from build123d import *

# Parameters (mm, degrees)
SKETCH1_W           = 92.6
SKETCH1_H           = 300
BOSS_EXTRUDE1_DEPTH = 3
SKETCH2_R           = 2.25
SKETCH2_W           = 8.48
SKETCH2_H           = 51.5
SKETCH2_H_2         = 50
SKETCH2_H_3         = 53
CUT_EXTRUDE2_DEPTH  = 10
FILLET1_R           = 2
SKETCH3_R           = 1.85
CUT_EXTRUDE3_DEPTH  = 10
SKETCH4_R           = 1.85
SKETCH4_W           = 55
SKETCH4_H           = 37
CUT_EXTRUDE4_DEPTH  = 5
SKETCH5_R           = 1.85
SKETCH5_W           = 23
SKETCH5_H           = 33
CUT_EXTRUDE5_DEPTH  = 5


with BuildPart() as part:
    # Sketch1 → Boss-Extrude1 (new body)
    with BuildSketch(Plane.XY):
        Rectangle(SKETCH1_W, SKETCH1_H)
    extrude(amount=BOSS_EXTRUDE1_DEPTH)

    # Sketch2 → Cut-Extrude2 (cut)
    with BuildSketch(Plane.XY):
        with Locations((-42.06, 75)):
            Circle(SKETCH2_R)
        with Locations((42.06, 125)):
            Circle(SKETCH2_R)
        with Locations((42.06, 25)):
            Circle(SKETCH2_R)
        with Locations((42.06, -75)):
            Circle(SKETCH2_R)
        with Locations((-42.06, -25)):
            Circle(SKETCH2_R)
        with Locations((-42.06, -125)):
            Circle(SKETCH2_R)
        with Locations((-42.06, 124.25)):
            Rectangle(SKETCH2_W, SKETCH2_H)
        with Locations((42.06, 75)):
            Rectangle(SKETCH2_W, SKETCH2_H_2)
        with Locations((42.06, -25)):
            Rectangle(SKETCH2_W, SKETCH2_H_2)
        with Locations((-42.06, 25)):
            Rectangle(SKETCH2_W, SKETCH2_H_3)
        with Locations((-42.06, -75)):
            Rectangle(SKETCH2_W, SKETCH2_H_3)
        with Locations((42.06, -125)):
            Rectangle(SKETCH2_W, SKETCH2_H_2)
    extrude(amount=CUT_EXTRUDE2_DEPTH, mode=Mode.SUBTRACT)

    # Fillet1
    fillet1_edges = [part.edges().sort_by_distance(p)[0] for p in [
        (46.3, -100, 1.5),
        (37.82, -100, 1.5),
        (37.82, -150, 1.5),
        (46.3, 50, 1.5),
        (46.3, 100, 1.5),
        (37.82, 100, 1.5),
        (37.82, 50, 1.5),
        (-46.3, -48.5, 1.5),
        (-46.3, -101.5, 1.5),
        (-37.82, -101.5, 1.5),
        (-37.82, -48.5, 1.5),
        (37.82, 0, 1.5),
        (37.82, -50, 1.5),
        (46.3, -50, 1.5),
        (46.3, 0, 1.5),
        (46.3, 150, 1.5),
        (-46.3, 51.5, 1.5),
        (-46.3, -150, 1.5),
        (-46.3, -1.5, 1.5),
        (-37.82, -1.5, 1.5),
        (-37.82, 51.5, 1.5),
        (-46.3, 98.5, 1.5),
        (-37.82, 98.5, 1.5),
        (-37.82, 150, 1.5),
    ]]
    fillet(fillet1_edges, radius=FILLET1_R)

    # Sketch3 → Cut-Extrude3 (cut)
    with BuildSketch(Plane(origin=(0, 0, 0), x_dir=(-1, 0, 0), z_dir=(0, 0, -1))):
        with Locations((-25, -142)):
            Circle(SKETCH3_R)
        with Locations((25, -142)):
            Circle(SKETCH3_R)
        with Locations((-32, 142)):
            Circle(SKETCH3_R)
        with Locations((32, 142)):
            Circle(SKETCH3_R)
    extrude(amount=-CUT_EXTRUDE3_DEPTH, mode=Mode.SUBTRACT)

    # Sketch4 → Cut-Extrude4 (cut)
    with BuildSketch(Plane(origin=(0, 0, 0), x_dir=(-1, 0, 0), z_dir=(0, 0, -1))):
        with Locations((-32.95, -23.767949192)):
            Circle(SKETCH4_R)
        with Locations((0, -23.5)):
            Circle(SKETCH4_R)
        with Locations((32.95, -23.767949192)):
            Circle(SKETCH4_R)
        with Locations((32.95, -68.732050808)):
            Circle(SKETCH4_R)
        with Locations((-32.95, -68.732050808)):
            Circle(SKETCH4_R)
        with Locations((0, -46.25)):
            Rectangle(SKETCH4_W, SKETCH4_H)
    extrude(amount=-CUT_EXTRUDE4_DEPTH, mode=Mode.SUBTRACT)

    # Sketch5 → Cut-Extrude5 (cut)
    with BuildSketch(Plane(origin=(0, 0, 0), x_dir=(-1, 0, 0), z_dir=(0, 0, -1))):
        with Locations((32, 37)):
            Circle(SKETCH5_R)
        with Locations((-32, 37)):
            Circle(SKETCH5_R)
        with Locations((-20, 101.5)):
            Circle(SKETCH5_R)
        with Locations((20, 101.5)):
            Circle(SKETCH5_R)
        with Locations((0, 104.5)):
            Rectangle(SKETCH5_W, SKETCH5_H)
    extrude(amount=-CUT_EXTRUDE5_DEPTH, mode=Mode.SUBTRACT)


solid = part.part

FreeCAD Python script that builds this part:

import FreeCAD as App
import Part
import Sketcher

V = App.Vector


def edges_at(feature, points):
    """Names of the edges that pass closest to the given points."""
    edges = feature.Shape.Edges
    near = lambda p: min(range(len(edges)), key=lambda i: edges[i].distToShape(Part.Vertex(*p))[0])
    return sorted({f"Edge{near(p) + 1}" for p in points})


def add_polygon(sketch, points):
    """Adds a closed chain of lines whose ends are joined by coincident constraints."""
    first, n = sketch.GeometryCount, len(points)
    for a, b in zip(points, points[1:] + points[:1]):
        sketch.addGeometry(Part.LineSegment(App.Vector(*a, 0), App.Vector(*b, 0)), False)
    for i in range(n):
        sketch.addConstraint(Sketcher.Constraint("Coincident", first + i, 2, first + (i + 1) % n, 1))

doc = App.newDocument("Part")
body = doc.addObject("PartDesign::Body", "Body")

# Sketch on XY plane
sketch1 = doc.addObject("Sketcher::SketchObject", "Sketch")
body.addObject(sketch1)
sketch1.AttachmentSupport = (doc.XY_Plane, [""])
sketch1.MapMode = "FlatFace"
add_polygon(sketch1, [(-46, 150), (-46, -150), (46, -150), (46, 150)])  # lines 0-3
sketch1.addConstraint(Sketcher.Constraint("Vertical", 0))
sketch1.addConstraint(Sketcher.Constraint("Horizontal", 1))
sketch1.addConstraint(Sketcher.Constraint("Vertical", 2))
sketch1.addConstraint(Sketcher.Constraint("Horizontal", 3))
sketch1.addConstraint(Sketcher.Constraint("Symmetric", 0, 2, 2, 2, -1, 1))
sketch1.addConstraint(Sketcher.Constraint("DistanceY", 0, 2, 0, 1, 300.0))
sketch1.addConstraint(Sketcher.Constraint("DistanceX", 1, 1, 1, 2, 92.6))
pad1 = doc.addObject("PartDesign::Pad", "Pad")
body.addObject(pad1)
pad1.Profile = sketch1
pad1.Length = 3

# Sketch on XY plane
sketch2 = doc.addObject("Sketcher::SketchObject", "Sketch001")
body.addObject(sketch2)
sketch2.AttachmentSupport = (doc.XY_Plane, [""])
sketch2.MapMode = "FlatFace"
sketch2.addGeometry(Part.Circle(V(-42.1, 75, 0), V(0, 0, 1), 2.2), False)  # 0
sketch2.addGeometry(Part.Circle(V(42.1, 125, 0), V(0, 0, 1), 2.2), False)  # 1
sketch2.addGeometry(Part.Circle(V(42.1, 25, 0), V(0, 0, 1), 2.2), False)  # 2
sketch2.addGeometry(Part.Circle(V(42.1, -75, 0), V(0, 0, 1), 2.2), False)  # 3
sketch2.addGeometry(Part.Circle(V(-42.1, -25, 0), V(0, 0, 1), 2.2), False)  # 4
sketch2.addGeometry(Part.Circle(V(-42.1, -125, 0), V(0, 0, 1), 2.2), False)  # 5
add_polygon(sketch2, [(-46.3, 150), (-46.3, 98.5), (-37.8, 98.5), (-37.8, 150)])  # lines 6-9
add_polygon(sketch2, [(37.8, 100), (37.8, 50), (46.3, 50), (46.3, 100)])  # lines 10-13
add_polygon(sketch2, [(37.8, 0), (37.8, -50), (46.3, -50), (46.3, 0)])  # lines 14-17
add_polygon(sketch2, [(-46.3, 51.5), (-46.3, -1.5), (-37.8, -1.5), (-37.8, 51.5)])  # lines 18-21
add_polygon(sketch2, [(-46.3, -48.5), (-46.3, -101.5), (-37.8, -101.5), (-37.8, -48.5)])  # lines 22-25
add_polygon(sketch2, [(37.8, -100), (37.8, -150), (46.3, -150), (46.3, -100)])  # lines 26-29
sketch2.addConstraint(Sketcher.Constraint("Vertical", 6))
sketch2.addConstraint(Sketcher.Constraint("Horizontal", 7))
sketch2.addConstraint(Sketcher.Constraint("Vertical", 8))
sketch2.addConstraint(Sketcher.Constraint("Horizontal", 9))
sketch2.addConstraint(Sketcher.Constraint("Vertical", 10))
sketch2.addConstraint(Sketcher.Constraint("Horizontal", 11))
sketch2.addConstraint(Sketcher.Constraint("Vertical", 12))
sketch2.addConstraint(Sketcher.Constraint("Horizontal", 13))
sketch2.addConstraint(Sketcher.Constraint("Vertical", 14))
sketch2.addConstraint(Sketcher.Constraint("Horizontal", 15))
sketch2.addConstraint(Sketcher.Constraint("Vertical", 16))
sketch2.addConstraint(Sketcher.Constraint("Horizontal", 17))
sketch2.addConstraint(Sketcher.Constraint("Vertical", 18))
sketch2.addConstraint(Sketcher.Constraint("Horizontal", 19))
sketch2.addConstraint(Sketcher.Constraint("Vertical", 20))
sketch2.addConstraint(Sketcher.Constraint("Horizontal", 21))
sketch2.addConstraint(Sketcher.Constraint("Vertical", 22))
sketch2.addConstraint(Sketcher.Constraint("Horizontal", 23))
sketch2.addConstraint(Sketcher.Constraint("Vertical", 24))
sketch2.addConstraint(Sketcher.Constraint("Horizontal", 25))
sketch2.addConstraint(Sketcher.Constraint("Vertical", 26))
sketch2.addConstraint(Sketcher.Constraint("Horizontal", 27))
sketch2.addConstraint(Sketcher.Constraint("Vertical", 28))
sketch2.addConstraint(Sketcher.Constraint("Horizontal", 29))
sketch2.addConstraint(Sketcher.Constraint("Equal", 0, 1))
sketch2.addConstraint(Sketcher.Constraint("Equal", 1, 2))
sketch2.addConstraint(Sketcher.Constraint("Equal", 2, 3))
sketch2.addConstraint(Sketcher.Constraint("Equal", 3, 4))
sketch2.addConstraint(Sketcher.Constraint("Equal", 4, 5))
sketch2.addConstraint(Sketcher.Constraint("Symmetric", 0, 3, 3, 3, -1, 1))
sketch2.addConstraint(Sketcher.Constraint("Symmetric", 2, 3, 4, 3, -1, 1))
sketch2.addConstraint(Sketcher.Constraint("Symmetric", 1, 3, 5, 3, -1, 1))
sketch2.addConstraint(Sketcher.Constraint("Symmetric", 8, 2, 26, 2, -1, 1))
sketch2.addConstraint(Sketcher.Constraint("Symmetric", 10, 2, 14, 2, -1))
sketch2.addConstraint(Sketcher.Constraint("Symmetric", 12, 2, 28, 2, -1))
sketch2.addConstraint(Sketcher.Constraint("PointOnObject", 16, 2, -1))
sketch2.addConstraint(Sketcher.Constraint("Vertical", 1, 3, 2, 3))
sketch2.addConstraint(Sketcher.Constraint("Vertical", 2, 3, 3, 3))
sketch2.addConstraint(Sketcher.Constraint("Vertical", 12, 2, 15, 2))
sketch2.addConstraint(Sketcher.Constraint("Vertical", 9, 2, 18, 2))
sketch2.addConstraint(Sketcher.Constraint("Vertical", 8, 2, 19, 2))
sketch2.addConstraint(Sketcher.Constraint("Vertical", 21, 2, 22, 2))
sketch2.addConstraint(Sketcher.Constraint("Vertical", 20, 2, 23, 2))
sketch2.addConstraint(Sketcher.Constraint("Vertical", 17, 2, 26, 2))
sketch2.addConstraint(Sketcher.Constraint("Equal", 9, 11))
sketch2.addConstraint(Sketcher.Constraint("Equal", 12, 14))
sketch2.addConstraint(Sketcher.Constraint("Equal", 20, 22))
sketch2.addConstraint(Sketcher.Constraint("Equal", 16, 26))
sketch2.addConstraint(Sketcher.Constraint("Diameter", 0, 4.5))
sketch2.addConstraint(Sketcher.Constraint("DistanceY", 10, 2, 10, 1, 50.0))
sketch2.addConstraint(Sketcher.Constraint("DistanceY", 18, 2, 18, 1, 53.0))
sketch2.addConstraint(Sketcher.Constraint("DistanceY", 6, 2, 6, 1, 51.5))
sketch2.addConstraint(Sketcher.Constraint("DistanceY", -1, 1, 0, 3, 75.0))
sketch2.addConstraint(Sketcher.Constraint("DistanceY", -1, 1, 1, 3, 125.0))
sketch2.addConstraint(Sketcher.Constraint("DistanceY", -1, 1, 2, 3, 25.0))
sketch2.addConstraint(Sketcher.Constraint("DistanceY", 20, 2, 7, 2, 47.0))
sketch2.addConstraint(Sketcher.Constraint("DistanceY", 22, 2, 18, 2, 100.0))
sketch2.addConstraint(Sketcher.Constraint("DistanceX", 7, 1, 7, 2, 8.48))
sketch2.addConstraint(Sketcher.Constraint("DistanceX", 6, 2, -1, 1, 46.3))
sketch2.addConstraint(Sketcher.Constraint("DistanceX", 0, 3, -1, 1, 42.06))
pocket1 = doc.addObject("PartDesign::Pocket", "Pocket")
body.addObject(pocket1)
pocket1.Profile = sketch2
pocket1.Length = 10
pocket1.Reversed = True
doc.recompute()

fillet = doc.addObject("PartDesign::Fillet", "Fillet")
body.addObject(fillet)
fillet.Base = (pocket1, edges_at(pocket1, [
    (46.3, -100, 1.5),
    (37.82, -100, 1.5),
    (37.82, -150, 1.5),
    (46.3, 50, 1.5),
    (46.3, 100, 1.5),
    (37.82, 100, 1.5),
    (37.82, 50, 1.5),
    (-46.3, -48.5, 1.5),
    (-46.3, -101.5, 1.5),
    (-37.82, -101.5, 1.5),
    (-37.82, -48.5, 1.5),
    (37.82, 0, 1.5),
    (37.82, -50, 1.5),
    (46.3, -50, 1.5),
    (46.3, 0, 1.5),
    (46.3, 150, 1.5),
    (-46.3, 51.5, 1.5),
    (-46.3, -150, 1.5),
    (-46.3, -1.5, 1.5),
    (-37.82, -1.5, 1.5),
    (-37.82, 51.5, 1.5),
    (-46.3, 98.5, 1.5),
    (-37.82, 98.5, 1.5),
    (-37.82, 150, 1.5),
]))
fillet.Radius = 2

# Sketch on XY plane
sketch3 = doc.addObject("Sketcher::SketchObject", "Sketch002")
body.addObject(sketch3)
sketch3.AttachmentSupport = (doc.XY_Plane, [""])
sketch3.MapMode = "FlatFace"
sketch3.addGeometry(Part.Circle(V(25, -142, 0), V(0, 0, 1), 1.9), False)
sketch3.addGeometry(Part.Circle(V(-25, -142, 0), V(0, 0, 1), 1.9), False)
sketch3.addGeometry(Part.Circle(V(32, 142, 0), V(0, 0, 1), 1.9), False)
sketch3.addGeometry(Part.Circle(V(-32, 142, 0), V(0, 0, 1), 1.9), False)
sketch3.addConstraint(Sketcher.Constraint("Equal", 0, 1))
sketch3.addConstraint(Sketcher.Constraint("Equal", 1, 2))
sketch3.addConstraint(Sketcher.Constraint("Equal", 2, 3))
sketch3.addConstraint(Sketcher.Constraint("Symmetric", 0, 3, 1, 3, -2))
sketch3.addConstraint(Sketcher.Constraint("Symmetric", 2, 3, 3, 3, -2))
sketch3.addConstraint(Sketcher.Constraint("Diameter", 0, 3.7))
sketch3.addConstraint(Sketcher.Constraint("DistanceX", -1, 1, 0, 3, 25.0))
sketch3.addConstraint(Sketcher.Constraint("DistanceY", 0, 3, -1, 1, 142.0))
sketch3.addConstraint(Sketcher.Constraint("DistanceX", -1, 1, 2, 3, 32.0))
sketch3.addConstraint(Sketcher.Constraint("DistanceY", -1, 1, 2, 3, 142.0))
pocket2 = doc.addObject("PartDesign::Pocket", "Pocket001")
body.addObject(pocket2)
pocket2.Profile = sketch3
pocket2.Length = 10
pocket2.Reversed = True

# Sketch on XY plane
sketch4 = doc.addObject("Sketcher::SketchObject", "Sketch003")
body.addObject(sketch4)
sketch4.AttachmentSupport = (doc.XY_Plane, [""])
sketch4.MapMode = "FlatFace"
sketch4.addGeometry(Part.Circle(V(33, -23.8, 0), V(0, 0, 1), 1.9), False)  # 0
sketch4.addGeometry(Part.Circle(V(0, -23.5, 0), V(0, 0, 1), 1.9), False)  # 1
sketch4.addGeometry(Part.Circle(V(-33, -23.8, 0), V(0, 0, 1), 1.9), False)  # 2
sketch4.addGeometry(Part.Circle(V(-33, -68.7, 0), V(0, 0, 1), 1.9), False)  # 3
sketch4.addGeometry(Part.Circle(V(33, -68.7, 0), V(0, 0, 1), 1.9), False)  # 4
add_polygon(sketch4, [(27.5, -27.8), (27.5, -64.8), (-27.5, -64.8), (-27.5, -27.8)])  # lines 5-8
sketch4.addConstraint(Sketcher.Constraint("Vertical", 5))
sketch4.addConstraint(Sketcher.Constraint("Horizontal", 6))
sketch4.addConstraint(Sketcher.Constraint("Vertical", 7))
sketch4.addConstraint(Sketcher.Constraint("Horizontal", 8))
sketch4.addConstraint(Sketcher.Constraint("Equal", 0, 1))
sketch4.addConstraint(Sketcher.Constraint("Equal", 1, 2))
sketch4.addConstraint(Sketcher.Constraint("Equal", 2, 3))
sketch4.addConstraint(Sketcher.Constraint("Equal", 3, 4))
sketch4.addConstraint(Sketcher.Constraint("Symmetric", 0, 3, 2, 3, -2))
sketch4.addConstraint(Sketcher.Constraint("Symmetric", 3, 3, 4, 3, -2))
sketch4.addConstraint(Sketcher.Constraint("PointOnObject", 1, 3, -2))
sketch4.addConstraint(Sketcher.Constraint("Vertical", 2, 3, 3, 3))
sketch4.addConstraint(Sketcher.Constraint("Diameter", 0, 3.7))
sketch4.addConstraint(Sketcher.Constraint("DistanceX", 6, 2, 6, 1, 55.0))
sketch4.addConstraint(Sketcher.Constraint("DistanceY", 5, 2, 5, 1, 37.0))
sketch4.addConstraint(Sketcher.Constraint("DistanceY", 1, 3, -1, 1, 23.5))
sketch4.addConstraint(Sketcher.Constraint("DistanceX", -1, 1, 5, 2, 27.5))
sketch4.addConstraint(Sketcher.Constraint("DistanceX", 2, 3, 0, 3, 65.9))
sketch4.addConstraint(Sketcher.Constraint("DistanceY", 5, 2, -1, 1, 64.75))
sketch4.addConstraint(Sketcher.Constraint("DistanceY", 3, 3, 2, 3, 44.964102))
sketch4.addConstraint(Sketcher.Constraint("DistanceY", 0, 3, -1, 1, 23.767949))
pocket3 = doc.addObject("PartDesign::Pocket", "Pocket002")
body.addObject(pocket3)
pocket3.Profile = sketch4
pocket3.Length = 5
pocket3.Reversed = True

# Sketch on XY plane
sketch5 = doc.addObject("Sketcher::SketchObject", "Sketch004")
body.addObject(sketch5)
sketch5.AttachmentSupport = (doc.XY_Plane, [""])
sketch5.MapMode = "FlatFace"
sketch5.addGeometry(Part.Circle(V(-32, 37, 0), V(0, 0, 1), 1.9), False)  # 0
sketch5.addGeometry(Part.Circle(V(32, 37, 0), V(0, 0, 1), 1.9), False)  # 1
sketch5.addGeometry(Part.Circle(V(20, 101.5, 0), V(0, 0, 1), 1.9), False)  # 2
sketch5.addGeometry(Part.Circle(V(-20, 101.5, 0), V(0, 0, 1), 1.9), False)  # 3
add_polygon(sketch5, [(11.5, 121), (11.5, 88), (-11.5, 88), (-11.5, 121)])  # lines 4-7
sketch5.addConstraint(Sketcher.Constraint("Vertical", 4))
sketch5.addConstraint(Sketcher.Constraint("Horizontal", 5))
sketch5.addConstraint(Sketcher.Constraint("Vertical", 6))
sketch5.addConstraint(Sketcher.Constraint("Horizontal", 7))
sketch5.addConstraint(Sketcher.Constraint("Equal", 0, 1))
sketch5.addConstraint(Sketcher.Constraint("Equal", 1, 2))
sketch5.addConstraint(Sketcher.Constraint("Equal", 2, 3))
sketch5.addConstraint(Sketcher.Constraint("Symmetric", 0, 3, 1, 3, -2))
sketch5.addConstraint(Sketcher.Constraint("Symmetric", 2, 3, 3, 3, -2))
sketch5.addConstraint(Sketcher.Constraint("Diameter", 0, 3.7))
sketch5.addConstraint(Sketcher.Constraint("DistanceX", 5, 2, 5, 1, 23.0))
sketch5.addConstraint(Sketcher.Constraint("DistanceY", 4, 2, 4, 1, 33.0))
sketch5.addConstraint(Sketcher.Constraint("DistanceX", 0, 3, -1, 1, 32.0))
sketch5.addConstraint(Sketcher.Constraint("DistanceY", -1, 1, 0, 3, 37.0))
sketch5.addConstraint(Sketcher.Constraint("DistanceX", -1, 1, 2, 3, 20.0))
sketch5.addConstraint(Sketcher.Constraint("DistanceY", -1, 1, 4, 2, 88.0))
sketch5.addConstraint(Sketcher.Constraint("DistanceY", -1, 1, 2, 3, 101.5))
sketch5.addConstraint(Sketcher.Constraint("DistanceX", -1, 1, 4, 2, 11.5))
pocket4 = doc.addObject("PartDesign::Pocket", "Pocket003")
body.addObject(pocket4)
pocket4.Profile = sketch5
pocket4.Length = 5
pocket4.Reversed = True

doc.recompute()
